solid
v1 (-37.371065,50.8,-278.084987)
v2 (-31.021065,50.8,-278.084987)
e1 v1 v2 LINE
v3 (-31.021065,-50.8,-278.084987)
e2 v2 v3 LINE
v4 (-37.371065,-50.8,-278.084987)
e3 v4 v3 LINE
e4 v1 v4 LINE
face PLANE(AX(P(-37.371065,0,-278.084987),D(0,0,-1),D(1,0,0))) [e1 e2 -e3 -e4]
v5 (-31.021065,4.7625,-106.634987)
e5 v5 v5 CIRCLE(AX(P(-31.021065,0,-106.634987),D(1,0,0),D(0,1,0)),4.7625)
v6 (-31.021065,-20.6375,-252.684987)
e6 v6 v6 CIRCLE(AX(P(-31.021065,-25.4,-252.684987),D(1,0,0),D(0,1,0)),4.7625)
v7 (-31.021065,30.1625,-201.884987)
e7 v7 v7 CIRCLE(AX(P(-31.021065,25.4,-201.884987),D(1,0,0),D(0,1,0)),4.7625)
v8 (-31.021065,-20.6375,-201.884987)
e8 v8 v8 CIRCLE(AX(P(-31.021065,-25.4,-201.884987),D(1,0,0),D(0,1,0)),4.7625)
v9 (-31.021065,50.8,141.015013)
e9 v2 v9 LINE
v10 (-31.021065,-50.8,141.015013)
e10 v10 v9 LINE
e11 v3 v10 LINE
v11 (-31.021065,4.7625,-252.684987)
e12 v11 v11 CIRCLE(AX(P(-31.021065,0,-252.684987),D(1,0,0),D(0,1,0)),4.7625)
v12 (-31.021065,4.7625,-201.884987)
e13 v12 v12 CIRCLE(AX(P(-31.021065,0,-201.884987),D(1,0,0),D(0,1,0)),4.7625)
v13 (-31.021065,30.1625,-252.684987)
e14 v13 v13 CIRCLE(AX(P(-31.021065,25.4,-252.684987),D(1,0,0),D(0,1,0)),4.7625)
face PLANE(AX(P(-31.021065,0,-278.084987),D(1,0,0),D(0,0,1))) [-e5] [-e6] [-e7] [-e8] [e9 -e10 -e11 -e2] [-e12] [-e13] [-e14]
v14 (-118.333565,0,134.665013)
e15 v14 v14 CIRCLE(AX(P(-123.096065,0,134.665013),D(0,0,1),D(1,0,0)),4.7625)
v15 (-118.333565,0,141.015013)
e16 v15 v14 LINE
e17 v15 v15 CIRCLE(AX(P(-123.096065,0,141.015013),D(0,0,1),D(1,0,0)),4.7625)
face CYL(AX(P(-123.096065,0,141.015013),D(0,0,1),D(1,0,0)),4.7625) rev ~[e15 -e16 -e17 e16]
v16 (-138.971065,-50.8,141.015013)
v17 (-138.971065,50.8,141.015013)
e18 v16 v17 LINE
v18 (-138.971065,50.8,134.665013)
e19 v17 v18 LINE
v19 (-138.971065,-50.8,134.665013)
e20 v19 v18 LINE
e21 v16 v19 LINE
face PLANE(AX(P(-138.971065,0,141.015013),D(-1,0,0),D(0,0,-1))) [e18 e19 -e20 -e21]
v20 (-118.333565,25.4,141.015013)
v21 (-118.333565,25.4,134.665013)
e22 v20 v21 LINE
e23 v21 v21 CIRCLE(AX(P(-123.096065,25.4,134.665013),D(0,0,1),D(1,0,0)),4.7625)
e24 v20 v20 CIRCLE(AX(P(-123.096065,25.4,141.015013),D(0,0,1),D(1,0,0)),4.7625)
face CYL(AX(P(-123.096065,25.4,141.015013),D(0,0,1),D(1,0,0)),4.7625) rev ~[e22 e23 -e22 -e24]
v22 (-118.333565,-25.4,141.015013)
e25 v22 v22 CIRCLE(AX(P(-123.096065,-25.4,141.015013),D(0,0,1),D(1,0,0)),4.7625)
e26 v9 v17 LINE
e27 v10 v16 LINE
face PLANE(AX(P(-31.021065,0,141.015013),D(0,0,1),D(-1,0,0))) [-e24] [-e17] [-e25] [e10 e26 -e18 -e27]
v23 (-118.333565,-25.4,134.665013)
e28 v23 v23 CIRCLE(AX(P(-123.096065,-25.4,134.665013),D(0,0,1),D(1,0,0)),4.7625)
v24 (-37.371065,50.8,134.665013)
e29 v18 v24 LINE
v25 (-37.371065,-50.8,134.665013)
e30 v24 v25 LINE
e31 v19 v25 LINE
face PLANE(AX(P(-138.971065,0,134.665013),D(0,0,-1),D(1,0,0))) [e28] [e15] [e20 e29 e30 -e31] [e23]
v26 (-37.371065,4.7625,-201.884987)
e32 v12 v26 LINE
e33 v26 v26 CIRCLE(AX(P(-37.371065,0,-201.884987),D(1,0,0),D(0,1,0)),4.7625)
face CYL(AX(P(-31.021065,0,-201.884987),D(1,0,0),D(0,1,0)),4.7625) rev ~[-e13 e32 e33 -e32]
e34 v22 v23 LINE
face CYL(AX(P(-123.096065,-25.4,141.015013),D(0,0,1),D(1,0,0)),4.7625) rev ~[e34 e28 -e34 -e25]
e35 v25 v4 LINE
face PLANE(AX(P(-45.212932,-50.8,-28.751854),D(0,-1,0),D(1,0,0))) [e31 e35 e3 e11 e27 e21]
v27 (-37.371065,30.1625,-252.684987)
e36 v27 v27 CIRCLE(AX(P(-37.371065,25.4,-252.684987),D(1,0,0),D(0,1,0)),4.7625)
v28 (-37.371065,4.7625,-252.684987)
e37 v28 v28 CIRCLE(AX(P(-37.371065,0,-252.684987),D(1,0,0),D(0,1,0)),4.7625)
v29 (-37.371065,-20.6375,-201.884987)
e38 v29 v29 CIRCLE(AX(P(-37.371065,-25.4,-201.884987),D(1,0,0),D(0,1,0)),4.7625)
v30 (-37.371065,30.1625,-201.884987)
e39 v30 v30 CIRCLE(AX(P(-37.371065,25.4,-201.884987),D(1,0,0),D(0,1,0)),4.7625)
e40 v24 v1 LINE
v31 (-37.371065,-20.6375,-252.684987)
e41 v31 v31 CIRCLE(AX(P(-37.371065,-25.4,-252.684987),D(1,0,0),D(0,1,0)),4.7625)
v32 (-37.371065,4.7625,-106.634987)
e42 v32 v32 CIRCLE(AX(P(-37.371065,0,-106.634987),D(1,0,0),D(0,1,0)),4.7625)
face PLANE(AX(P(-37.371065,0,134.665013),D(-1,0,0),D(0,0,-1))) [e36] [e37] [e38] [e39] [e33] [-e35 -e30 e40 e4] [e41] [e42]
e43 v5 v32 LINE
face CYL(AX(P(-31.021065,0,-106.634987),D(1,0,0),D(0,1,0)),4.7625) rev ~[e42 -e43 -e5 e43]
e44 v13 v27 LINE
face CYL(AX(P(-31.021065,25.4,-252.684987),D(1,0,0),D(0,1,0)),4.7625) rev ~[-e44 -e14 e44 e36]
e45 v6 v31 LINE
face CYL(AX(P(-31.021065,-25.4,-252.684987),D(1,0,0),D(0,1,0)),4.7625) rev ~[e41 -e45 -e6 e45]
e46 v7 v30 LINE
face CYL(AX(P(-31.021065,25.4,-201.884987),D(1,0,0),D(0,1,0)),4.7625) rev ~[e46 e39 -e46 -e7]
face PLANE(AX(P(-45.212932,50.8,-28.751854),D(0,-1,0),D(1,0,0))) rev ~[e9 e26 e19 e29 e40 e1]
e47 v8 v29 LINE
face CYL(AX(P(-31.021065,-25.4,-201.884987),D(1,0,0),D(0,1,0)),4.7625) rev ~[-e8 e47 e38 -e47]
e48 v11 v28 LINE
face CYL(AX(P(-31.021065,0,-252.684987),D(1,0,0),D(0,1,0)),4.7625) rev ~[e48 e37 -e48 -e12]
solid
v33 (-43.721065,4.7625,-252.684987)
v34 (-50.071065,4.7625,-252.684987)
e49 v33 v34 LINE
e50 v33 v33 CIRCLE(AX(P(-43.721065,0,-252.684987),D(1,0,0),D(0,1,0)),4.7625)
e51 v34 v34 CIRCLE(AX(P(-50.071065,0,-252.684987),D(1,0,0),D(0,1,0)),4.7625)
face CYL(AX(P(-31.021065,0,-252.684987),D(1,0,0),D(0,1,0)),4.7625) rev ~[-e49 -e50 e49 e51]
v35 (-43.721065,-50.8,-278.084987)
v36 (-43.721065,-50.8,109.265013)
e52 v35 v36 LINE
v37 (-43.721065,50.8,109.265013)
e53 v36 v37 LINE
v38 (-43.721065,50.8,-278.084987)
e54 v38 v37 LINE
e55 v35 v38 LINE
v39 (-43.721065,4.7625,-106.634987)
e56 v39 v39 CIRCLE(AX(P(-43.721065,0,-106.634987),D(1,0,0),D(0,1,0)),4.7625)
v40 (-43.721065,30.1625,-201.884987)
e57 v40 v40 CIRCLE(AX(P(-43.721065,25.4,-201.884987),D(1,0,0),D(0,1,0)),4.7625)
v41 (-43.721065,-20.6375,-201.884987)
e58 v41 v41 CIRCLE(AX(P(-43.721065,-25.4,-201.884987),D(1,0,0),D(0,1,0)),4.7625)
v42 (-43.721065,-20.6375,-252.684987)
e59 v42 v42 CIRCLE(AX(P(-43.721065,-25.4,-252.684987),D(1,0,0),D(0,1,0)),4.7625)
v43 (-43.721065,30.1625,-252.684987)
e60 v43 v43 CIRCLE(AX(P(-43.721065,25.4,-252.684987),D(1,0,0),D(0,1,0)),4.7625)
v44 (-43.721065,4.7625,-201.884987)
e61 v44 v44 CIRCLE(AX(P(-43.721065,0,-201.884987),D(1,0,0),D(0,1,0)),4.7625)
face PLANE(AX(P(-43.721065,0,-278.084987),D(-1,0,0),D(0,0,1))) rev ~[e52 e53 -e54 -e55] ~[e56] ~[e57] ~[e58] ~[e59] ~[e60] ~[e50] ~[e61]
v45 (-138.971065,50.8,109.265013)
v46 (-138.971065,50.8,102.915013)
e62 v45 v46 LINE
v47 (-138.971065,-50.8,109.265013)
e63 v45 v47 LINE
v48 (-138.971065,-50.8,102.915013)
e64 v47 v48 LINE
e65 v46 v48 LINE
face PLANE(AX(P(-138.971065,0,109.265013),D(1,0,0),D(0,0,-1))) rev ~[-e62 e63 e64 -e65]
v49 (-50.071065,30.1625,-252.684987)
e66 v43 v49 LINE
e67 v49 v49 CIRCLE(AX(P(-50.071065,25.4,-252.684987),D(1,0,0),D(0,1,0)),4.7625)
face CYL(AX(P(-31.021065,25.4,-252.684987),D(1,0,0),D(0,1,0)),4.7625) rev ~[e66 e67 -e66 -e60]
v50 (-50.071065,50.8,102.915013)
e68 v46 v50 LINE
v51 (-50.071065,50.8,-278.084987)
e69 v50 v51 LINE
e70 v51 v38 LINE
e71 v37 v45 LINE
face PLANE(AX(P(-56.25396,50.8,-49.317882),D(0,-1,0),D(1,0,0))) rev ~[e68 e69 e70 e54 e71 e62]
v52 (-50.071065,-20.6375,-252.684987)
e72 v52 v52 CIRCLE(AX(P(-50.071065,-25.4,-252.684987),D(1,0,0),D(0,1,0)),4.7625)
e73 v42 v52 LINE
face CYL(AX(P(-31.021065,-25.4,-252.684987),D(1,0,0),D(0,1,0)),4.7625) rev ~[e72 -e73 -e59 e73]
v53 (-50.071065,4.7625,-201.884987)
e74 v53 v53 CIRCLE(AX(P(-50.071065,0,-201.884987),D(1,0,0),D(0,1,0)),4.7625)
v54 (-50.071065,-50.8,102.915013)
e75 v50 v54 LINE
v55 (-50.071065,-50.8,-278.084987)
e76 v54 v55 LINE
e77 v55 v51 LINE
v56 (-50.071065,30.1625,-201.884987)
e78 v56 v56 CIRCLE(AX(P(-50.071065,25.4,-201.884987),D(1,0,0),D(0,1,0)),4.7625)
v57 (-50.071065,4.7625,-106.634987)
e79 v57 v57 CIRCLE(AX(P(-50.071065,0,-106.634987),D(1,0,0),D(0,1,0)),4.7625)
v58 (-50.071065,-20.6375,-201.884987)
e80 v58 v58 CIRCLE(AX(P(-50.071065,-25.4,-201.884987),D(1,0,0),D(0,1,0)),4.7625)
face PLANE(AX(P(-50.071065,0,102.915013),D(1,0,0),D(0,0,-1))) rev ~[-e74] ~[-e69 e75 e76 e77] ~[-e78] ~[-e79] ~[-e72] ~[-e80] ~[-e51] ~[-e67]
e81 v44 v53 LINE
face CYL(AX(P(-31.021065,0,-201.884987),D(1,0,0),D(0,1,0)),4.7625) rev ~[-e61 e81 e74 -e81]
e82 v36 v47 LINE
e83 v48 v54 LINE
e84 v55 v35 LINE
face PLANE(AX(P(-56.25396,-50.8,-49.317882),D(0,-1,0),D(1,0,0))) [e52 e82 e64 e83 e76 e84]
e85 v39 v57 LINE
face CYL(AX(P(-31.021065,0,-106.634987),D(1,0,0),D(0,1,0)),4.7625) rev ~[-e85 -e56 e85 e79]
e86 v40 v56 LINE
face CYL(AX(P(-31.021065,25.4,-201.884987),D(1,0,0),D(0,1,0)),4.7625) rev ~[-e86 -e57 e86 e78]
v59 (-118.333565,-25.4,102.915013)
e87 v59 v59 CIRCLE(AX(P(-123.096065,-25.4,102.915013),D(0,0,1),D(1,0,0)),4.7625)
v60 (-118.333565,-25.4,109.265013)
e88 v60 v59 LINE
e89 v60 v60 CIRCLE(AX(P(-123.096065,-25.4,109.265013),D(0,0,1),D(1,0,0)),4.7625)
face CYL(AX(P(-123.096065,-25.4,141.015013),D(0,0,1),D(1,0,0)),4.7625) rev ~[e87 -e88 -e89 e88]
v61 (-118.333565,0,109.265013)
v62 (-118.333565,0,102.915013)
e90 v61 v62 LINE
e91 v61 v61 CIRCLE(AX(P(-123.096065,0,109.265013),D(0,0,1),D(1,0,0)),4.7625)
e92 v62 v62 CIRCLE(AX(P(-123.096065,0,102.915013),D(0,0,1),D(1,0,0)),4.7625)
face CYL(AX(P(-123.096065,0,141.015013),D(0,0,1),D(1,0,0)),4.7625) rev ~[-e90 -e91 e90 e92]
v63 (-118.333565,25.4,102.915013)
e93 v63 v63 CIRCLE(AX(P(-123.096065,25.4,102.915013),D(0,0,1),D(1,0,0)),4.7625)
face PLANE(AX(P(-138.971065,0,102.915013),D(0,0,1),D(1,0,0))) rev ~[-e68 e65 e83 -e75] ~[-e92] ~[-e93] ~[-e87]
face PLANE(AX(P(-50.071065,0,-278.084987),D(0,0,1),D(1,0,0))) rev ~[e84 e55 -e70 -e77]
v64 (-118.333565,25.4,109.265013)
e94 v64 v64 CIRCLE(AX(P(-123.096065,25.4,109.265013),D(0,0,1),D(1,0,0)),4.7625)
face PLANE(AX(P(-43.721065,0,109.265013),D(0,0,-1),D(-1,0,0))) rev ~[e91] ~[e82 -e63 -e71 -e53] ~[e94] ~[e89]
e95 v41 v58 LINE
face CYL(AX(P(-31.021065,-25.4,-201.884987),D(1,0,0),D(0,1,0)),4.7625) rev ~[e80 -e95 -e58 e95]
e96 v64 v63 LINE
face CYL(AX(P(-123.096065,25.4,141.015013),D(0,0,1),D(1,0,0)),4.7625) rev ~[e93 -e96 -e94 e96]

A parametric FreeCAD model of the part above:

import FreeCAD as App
import Part
import Sketcher
Q = App.Units.Quantity


def add_polygon(sketch, points):
    """Adds a closed chain of lines whose ends are joined by coincident constraints."""
    first, n = sketch.GeometryCount, len(points)
    for a, b in zip(points, points[1:] + points[:1]):
        sketch.addGeometry(Part.LineSegment(App.Vector(*a, 0), App.Vector(*b, 0)), False)
    for i in range(n):
        sketch.addConstraint(Sketcher.Constraint("Coincident", first + i, 2, first + (i + 1) % n, 1))

doc = App.newDocument("Part")
body = doc.addObject("PartDesign::Body", "Body")
body.AllowCompound = True

# Sketch on XZ plane
sketch1 = doc.addObject("Sketcher::SketchObject", "Sketch")
body.addObject(sketch1)
sketch1.AttachmentSupport = (doc.XZ_Plane, [""])
sketch1.MapMode = "FlatFace"
add_polygon(sketch1, [(-43.721065, 109.265013), (-138.971065, 109.265013), (-138.971065, 102.915013), (-50.071065, 102.915013), (-50.071065, -278.084987), (-43.721065, -278.084987)])  # lines 0-5
add_polygon(sketch1, [(-138.971065, 134.665013), (-37.371065, 134.665013), (-37.371065, -278.084987), (-31.021065, -278.084987), (-31.021065, 141.015013), (-138.971065, 141.015013)])  # lines 6-11
sketch1.addConstraint([
    Sketcher.Constraint("Horizontal", 0),
    Sketcher.Constraint("Vertical", 1),
    Sketcher.Constraint("Horizontal", 2),
    Sketcher.Constraint("Vertical", 3),
    Sketcher.Constraint("Horizontal", 4),
    Sketcher.Constraint("Vertical", 5),
    Sketcher.Constraint("Horizontal", 6),
    Sketcher.Constraint("Vertical", 7),
    Sketcher.Constraint("Horizontal", 8),
    Sketcher.Constraint("Vertical", 9),
    Sketcher.Constraint("Horizontal", 10),
    Sketcher.Constraint("Vertical", 11),
    Sketcher.Constraint("Horizontal", 4, 2, 7, 2),
    Sketcher.Constraint("Vertical", 1, 2, 10, 2),
    Sketcher.Constraint("Equal", 4, 8),
    Sketcher.Constraint("Equal", 8, 1),
    Sketcher.Constraint("Equal", 1, 11),
    Sketcher.Constraint("DistanceX", 6, 1, 6, 2, Q("4 in")),
    Sketcher.Constraint("DistanceY", 3, 2, 3, 1, Q("15 in")),
    Sketcher.Constraint("DistanceX", 2, 1, 2, 2, Q("3.5 in")),
    Sketcher.Constraint("DistanceY", 9, 1, 9, 2, Q("16.5 in")),
    Sketcher.Constraint("DistanceY", 5, 2, 6, 2, Q("1 in")),
    Sketcher.Constraint("DistanceX", 0, 2, -1, 1, 138.971065),
    Sketcher.Constraint("DistanceY", -1, 1, 0, 2, 109.265013),
])
pad1 = doc.addObject("PartDesign::Pad", "Pad")
body.addObject(pad1)
pad1.Profile = sketch1
pad1.Length = Q("4 in")
pad1.Midplane = True

# Sketch on YZ plane
sketch2 = doc.addObject("Sketcher::SketchObject", "Sketch001")
body.addObject(sketch2)
sketch2.AttachmentSupport = (doc.YZ_Plane, [""])
sketch2.MapMode = "FlatFace"
sketch2.AttachmentOffset = App.Placement(App.Vector(0, 0, -31.021065), App.Rotation())
sketch2.addGeometry([
    Part.Circle(App.Vector(-25.4, -252.684987, 0), App.Vector(0, 0, 1), 4.7625),  # 0
    Part.Circle(App.Vector(-25.4, -201.884987, 0), App.Vector(0, 0, 1), 4.7625),  # 1
    Part.Circle(App.Vector(0, -252.684987, 0), App.Vector(0, 0, 1), 4.7625),  # 2
    Part.Circle(App.Vector(0, -201.884987, 0), App.Vector(0, 0, 1), 4.7625),  # 3
    Part.Circle(App.Vector(25.4, -252.684987, 0), App.Vector(0, 0, 1), 4.7625),  # 4
    Part.Circle(App.Vector(25.4, -201.884987, 0), App.Vector(0, 0, 1), 4.7625),  # 5
    Part.Circle(App.Vector(0, -106.634987, 0), App.Vector(0, 0, 1), 4.7625),  # 6
], False)
sketch2.addConstraint([
    Sketcher.Constraint("Equal", 0, 1),
    Sketcher.Constraint("Equal", 1, 2),
    Sketcher.Constraint("Equal", 2, 3),
    Sketcher.Constraint("Equal", 3, 4),
    Sketcher.Constraint("Equal", 4, 5),
    Sketcher.Constraint("Equal", 5, 6),
    Sketcher.Constraint("Symmetric", 0, 3, 4, 3, -2),
    Sketcher.Constraint("Symmetric", 1, 3, 5, 3, -2),
    Sketcher.Constraint("PointOnObject", 2, 3, -2),
    Sketcher.Constraint("PointOnObject", 3, 3, -2),
    Sketcher.Constraint("PointOnObject", 6, 3, -2),
    Sketcher.Constraint("Horizontal", 0, 3, 2, 3),
    Sketcher.Constraint("Horizontal", 1, 3, 3, 3),
    Sketcher.Constraint("Vertical", 0, 3, 1, 3),
    Sketcher.Constraint("Diameter", 0, Q("0.375 in")),
    Sketcher.Constraint("DistanceX", 0, 3, -1, 1, Q("1 in")),
    Sketcher.Constraint("DistanceY", 0, 3, 1, 3, Q("2 in")),
    Sketcher.Constraint("DistanceY", 3, 3, 6, 3, Q("3.75 in")),
    Sketcher.Constraint("DistanceY", 0, 3, -1, 1, 252.684987),
])
pocket1 = doc.addObject("PartDesign::Pocket", "Pocket")
body.addObject(pocket1)
pocket1.Profile = sketch2
pocket1.Type = "ThroughAll"

# Sketch on XY plane
sketch3 = doc.addObject("Sketcher::SketchObject", "Sketch002")
body.addObject(sketch3)
sketch3.AttachmentSupport = (doc.XY_Plane, [""])
sketch3.MapMode = "FlatFace"
sketch3.AttachmentOffset = App.Placement(App.Vector(0, 0, 141.015013), App.Rotation())
sketch3.addGeometry([
    Part.Circle(App.Vector(-123.096065, -25.4, 0), App.Vector(0, 0, 1), 4.7625),
    Part.Circle(App.Vector(-123.096065, 0, 0), App.Vector(0, 0, 1), 4.7625),
    Part.Circle(App.Vector(-123.096065, 25.4, 0), App.Vector(0, 0, 1), 4.7625),
], False)
sketch3.addConstraint([
    Sketcher.Constraint("Equal", 0, 1),
    Sketcher.Constraint("Equal", 1, 2),
    Sketcher.Constraint("Symmetric", 0, 3, 2, 3, -1),
    Sketcher.Constraint("PointOnObject", 1, 3, -1),
    Sketcher.Constraint("Vertical", 0, 3, 1, 3),
    Sketcher.Constraint("Diameter", 0, Q("0.375 in")),
    Sketcher.Constraint("DistanceY", 0, 3, -1, 1, Q("1 in")),
    Sketcher.Constraint("DistanceX", 0, 3, -1, 1, 123.096065),
])
pocket2 = doc.addObject("PartDesign::Pocket", "Pocket001")
body.addObject(pocket2)
pocket2.Profile = sketch3
pocket2.Type = "ThroughAll"

doc.recompute()
